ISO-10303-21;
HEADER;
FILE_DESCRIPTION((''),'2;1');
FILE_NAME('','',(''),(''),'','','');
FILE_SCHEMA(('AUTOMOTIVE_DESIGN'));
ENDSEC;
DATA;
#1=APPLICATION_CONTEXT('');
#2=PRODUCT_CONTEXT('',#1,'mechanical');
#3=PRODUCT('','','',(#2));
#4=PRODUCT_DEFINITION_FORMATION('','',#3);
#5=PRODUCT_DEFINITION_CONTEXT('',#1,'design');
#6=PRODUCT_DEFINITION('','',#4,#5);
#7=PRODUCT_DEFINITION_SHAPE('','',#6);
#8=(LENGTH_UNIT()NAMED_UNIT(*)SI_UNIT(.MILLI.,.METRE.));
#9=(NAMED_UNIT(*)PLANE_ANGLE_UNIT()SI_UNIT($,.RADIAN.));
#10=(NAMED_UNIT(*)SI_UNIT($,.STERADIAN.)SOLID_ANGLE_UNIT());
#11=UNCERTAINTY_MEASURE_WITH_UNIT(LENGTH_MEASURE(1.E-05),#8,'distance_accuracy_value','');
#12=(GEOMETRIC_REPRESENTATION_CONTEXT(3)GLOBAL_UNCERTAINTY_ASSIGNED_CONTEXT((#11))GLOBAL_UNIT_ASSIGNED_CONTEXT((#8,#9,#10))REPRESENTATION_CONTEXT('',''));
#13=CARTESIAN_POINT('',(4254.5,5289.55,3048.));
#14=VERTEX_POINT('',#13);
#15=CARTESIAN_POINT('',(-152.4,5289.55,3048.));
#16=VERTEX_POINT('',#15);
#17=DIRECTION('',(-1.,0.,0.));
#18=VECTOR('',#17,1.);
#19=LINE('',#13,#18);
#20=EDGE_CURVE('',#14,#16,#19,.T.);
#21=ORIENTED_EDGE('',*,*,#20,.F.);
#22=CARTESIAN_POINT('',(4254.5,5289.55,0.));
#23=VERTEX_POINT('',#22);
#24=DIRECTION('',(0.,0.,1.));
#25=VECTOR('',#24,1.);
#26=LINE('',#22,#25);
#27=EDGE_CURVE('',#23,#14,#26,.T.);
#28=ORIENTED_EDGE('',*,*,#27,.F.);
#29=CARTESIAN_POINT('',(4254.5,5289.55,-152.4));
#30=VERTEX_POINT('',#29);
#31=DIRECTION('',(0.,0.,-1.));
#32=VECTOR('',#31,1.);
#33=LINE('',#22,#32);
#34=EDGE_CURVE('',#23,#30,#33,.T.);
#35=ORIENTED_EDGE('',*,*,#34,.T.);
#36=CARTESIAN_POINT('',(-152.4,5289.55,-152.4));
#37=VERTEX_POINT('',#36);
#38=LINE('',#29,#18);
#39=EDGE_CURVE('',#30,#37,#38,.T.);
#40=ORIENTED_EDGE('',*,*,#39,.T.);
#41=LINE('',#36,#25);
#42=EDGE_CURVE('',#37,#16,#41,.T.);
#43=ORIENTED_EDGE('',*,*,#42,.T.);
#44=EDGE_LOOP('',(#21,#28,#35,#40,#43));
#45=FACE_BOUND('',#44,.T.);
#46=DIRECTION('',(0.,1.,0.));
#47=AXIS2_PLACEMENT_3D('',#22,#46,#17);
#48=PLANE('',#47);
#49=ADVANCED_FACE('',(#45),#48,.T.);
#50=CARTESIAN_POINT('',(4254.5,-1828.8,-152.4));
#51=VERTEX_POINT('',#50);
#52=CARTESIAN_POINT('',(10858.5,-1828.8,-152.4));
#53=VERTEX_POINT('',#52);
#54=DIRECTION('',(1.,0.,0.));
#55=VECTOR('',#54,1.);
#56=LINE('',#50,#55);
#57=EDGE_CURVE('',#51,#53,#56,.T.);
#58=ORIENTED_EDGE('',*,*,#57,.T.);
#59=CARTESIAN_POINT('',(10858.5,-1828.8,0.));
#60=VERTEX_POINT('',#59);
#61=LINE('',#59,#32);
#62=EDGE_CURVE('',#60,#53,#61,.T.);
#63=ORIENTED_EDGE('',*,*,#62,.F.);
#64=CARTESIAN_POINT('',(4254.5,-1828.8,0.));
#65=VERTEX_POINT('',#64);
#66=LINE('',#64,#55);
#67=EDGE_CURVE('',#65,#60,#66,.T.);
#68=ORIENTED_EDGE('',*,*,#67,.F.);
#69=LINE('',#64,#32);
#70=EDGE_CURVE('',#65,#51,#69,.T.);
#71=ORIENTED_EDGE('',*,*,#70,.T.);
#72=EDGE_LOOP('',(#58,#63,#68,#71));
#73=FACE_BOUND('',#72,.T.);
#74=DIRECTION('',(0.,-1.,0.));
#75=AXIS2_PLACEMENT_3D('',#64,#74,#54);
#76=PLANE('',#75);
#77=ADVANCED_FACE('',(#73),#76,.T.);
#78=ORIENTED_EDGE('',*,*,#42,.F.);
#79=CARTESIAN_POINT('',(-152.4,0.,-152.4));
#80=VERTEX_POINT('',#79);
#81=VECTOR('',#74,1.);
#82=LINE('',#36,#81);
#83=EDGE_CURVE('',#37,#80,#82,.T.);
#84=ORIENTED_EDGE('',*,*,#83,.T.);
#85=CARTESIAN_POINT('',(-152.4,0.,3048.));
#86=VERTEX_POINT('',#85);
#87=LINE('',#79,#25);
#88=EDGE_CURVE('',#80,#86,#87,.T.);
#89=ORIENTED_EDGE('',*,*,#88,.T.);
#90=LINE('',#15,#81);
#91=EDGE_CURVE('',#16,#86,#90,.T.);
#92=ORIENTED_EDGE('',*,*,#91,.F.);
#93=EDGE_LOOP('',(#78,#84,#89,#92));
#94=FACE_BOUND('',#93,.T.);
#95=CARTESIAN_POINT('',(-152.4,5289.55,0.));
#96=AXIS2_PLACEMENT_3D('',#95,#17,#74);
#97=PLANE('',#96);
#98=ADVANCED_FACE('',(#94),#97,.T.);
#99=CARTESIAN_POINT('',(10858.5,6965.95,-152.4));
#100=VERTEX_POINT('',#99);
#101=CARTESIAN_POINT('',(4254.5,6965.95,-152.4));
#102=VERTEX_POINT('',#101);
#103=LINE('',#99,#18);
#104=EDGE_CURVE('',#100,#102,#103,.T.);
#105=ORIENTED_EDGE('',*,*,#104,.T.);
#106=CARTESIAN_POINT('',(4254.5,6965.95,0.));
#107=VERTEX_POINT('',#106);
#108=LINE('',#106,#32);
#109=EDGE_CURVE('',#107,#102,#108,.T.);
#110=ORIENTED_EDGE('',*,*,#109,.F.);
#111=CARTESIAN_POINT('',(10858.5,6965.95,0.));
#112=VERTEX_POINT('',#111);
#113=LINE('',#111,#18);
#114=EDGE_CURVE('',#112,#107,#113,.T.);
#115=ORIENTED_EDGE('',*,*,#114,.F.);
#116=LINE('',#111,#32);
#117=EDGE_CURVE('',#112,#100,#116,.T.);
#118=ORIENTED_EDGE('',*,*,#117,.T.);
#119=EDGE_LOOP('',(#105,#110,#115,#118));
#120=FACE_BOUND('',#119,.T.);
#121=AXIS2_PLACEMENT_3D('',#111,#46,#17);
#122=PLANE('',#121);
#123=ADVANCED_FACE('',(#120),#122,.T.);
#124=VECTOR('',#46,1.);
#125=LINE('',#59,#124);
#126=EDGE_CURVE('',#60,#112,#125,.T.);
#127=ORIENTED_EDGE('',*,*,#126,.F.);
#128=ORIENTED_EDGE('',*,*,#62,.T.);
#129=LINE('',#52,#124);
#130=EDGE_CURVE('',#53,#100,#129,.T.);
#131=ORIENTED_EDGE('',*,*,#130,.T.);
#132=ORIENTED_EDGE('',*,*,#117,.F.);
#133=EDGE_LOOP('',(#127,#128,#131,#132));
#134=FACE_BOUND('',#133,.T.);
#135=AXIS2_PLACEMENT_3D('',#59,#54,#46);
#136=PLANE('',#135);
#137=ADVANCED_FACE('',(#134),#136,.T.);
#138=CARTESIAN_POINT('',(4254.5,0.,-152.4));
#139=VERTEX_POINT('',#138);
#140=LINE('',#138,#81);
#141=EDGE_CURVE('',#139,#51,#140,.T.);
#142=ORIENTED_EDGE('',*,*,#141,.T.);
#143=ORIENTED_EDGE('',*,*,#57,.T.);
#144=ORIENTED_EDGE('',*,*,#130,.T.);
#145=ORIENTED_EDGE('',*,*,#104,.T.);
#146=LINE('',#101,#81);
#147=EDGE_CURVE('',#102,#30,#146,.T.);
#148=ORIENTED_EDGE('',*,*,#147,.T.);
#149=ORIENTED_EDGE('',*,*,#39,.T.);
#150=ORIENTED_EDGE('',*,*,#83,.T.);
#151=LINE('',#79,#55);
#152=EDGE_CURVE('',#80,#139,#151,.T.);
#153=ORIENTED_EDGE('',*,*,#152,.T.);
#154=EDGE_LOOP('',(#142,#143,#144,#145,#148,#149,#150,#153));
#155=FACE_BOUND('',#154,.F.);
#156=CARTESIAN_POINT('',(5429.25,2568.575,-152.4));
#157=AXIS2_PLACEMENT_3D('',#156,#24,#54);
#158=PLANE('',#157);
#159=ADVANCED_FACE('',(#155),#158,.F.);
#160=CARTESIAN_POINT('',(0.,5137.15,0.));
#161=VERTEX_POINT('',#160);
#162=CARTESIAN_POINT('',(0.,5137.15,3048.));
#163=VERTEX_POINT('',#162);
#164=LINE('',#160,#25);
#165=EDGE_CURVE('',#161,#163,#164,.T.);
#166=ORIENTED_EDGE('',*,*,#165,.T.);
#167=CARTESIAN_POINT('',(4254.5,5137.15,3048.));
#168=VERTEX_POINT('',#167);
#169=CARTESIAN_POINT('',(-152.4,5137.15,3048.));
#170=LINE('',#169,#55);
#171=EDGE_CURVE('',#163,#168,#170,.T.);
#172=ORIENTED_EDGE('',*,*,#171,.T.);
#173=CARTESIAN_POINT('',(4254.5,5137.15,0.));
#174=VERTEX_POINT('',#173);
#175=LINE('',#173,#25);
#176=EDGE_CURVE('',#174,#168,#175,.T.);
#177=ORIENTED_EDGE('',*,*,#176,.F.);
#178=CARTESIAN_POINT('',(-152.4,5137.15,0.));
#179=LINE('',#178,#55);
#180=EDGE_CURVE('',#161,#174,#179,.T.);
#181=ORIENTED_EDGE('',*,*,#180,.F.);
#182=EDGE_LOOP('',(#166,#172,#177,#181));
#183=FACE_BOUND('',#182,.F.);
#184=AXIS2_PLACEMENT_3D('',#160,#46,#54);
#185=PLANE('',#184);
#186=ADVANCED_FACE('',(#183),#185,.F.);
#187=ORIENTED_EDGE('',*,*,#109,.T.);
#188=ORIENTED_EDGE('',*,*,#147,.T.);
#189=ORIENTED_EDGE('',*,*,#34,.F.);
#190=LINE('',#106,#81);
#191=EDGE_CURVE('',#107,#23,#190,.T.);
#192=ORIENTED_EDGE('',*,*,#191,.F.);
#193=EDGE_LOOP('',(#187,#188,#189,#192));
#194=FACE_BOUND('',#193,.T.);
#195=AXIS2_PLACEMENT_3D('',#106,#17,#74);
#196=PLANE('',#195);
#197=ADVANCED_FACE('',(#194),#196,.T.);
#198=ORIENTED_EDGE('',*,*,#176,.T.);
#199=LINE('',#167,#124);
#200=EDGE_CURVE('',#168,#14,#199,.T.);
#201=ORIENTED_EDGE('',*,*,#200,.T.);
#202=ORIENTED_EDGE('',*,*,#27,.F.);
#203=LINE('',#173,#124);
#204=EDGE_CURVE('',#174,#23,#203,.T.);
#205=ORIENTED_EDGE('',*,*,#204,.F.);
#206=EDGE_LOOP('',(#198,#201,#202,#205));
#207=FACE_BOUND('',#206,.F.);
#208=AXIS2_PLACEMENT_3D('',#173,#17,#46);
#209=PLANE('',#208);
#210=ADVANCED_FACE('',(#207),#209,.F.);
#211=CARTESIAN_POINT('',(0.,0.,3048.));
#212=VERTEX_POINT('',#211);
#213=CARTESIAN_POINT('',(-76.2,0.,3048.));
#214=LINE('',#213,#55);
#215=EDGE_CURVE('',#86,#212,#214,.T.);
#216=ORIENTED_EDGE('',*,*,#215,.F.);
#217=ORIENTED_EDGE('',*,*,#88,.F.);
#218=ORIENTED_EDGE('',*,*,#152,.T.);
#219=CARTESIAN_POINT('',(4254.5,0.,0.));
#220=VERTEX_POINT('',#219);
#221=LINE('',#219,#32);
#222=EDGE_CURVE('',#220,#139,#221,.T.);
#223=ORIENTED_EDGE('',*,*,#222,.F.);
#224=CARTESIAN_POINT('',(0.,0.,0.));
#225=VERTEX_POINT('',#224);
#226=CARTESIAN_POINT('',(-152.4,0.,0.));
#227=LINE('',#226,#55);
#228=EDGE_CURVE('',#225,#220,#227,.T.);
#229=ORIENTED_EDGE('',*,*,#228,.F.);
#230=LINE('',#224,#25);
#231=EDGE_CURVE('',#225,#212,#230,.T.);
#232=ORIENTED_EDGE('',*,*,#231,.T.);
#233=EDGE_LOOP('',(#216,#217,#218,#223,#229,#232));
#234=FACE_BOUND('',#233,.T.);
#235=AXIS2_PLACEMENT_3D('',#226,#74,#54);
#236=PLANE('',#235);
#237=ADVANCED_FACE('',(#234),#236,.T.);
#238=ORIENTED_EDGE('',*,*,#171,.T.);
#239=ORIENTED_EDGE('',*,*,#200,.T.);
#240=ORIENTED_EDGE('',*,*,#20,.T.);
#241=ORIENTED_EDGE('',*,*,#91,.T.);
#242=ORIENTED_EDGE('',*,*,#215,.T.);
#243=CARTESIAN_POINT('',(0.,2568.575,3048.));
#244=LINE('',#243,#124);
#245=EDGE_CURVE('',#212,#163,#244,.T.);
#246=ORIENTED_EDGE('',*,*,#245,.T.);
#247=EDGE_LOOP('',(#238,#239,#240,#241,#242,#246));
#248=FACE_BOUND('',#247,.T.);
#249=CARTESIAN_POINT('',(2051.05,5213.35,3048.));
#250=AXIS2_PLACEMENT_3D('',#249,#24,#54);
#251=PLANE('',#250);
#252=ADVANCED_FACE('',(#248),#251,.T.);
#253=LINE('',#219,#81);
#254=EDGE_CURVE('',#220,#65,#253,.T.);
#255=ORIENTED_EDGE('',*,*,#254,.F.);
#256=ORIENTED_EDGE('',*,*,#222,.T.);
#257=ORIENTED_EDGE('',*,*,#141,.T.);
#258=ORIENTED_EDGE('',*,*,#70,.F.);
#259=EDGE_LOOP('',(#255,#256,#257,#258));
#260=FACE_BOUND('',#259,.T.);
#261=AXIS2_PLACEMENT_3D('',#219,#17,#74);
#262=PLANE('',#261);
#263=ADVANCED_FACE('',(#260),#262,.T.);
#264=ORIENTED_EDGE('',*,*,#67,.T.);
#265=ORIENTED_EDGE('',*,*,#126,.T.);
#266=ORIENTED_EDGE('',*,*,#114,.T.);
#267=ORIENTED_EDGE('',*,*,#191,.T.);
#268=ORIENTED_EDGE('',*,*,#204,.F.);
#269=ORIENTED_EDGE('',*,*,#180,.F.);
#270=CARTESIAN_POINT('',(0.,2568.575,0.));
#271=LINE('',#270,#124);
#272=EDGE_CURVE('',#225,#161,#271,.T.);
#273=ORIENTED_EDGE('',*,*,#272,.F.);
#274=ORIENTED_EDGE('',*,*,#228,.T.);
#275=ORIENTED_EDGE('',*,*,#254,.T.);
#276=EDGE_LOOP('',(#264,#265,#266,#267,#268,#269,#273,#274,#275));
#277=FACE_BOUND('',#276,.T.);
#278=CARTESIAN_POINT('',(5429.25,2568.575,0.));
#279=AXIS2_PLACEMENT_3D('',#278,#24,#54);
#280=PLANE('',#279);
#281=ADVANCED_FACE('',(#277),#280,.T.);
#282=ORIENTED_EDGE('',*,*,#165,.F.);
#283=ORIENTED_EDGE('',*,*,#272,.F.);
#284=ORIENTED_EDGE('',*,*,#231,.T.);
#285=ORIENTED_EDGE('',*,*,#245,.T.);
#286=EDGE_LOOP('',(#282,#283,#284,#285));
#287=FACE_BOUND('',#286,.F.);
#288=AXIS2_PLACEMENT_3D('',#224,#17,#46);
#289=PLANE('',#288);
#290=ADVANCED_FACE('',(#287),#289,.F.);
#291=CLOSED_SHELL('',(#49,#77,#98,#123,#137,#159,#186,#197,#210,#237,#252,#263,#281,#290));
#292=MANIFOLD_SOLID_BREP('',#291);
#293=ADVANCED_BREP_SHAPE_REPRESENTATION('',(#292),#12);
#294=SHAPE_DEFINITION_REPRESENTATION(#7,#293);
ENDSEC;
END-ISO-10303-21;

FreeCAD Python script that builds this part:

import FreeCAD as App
import Part
import Sketcher

V = App.Vector
Q = App.Units.Quantity

doc = App.newDocument("Part")
body = doc.addObject("PartDesign::Body", "Body")

# Sketch on XY plane
sketch1 = body.newObject("Sketcher::SketchObject", "Sketch")
sketch1.AttachmentSupport = (doc.getObject("XY_Plane"), [""])
sketch1.MapMode = "FlatFace"
sketch1.addGeometry(Part.LineSegment(V(0, 5137, 0), V(4254, 5137, 0)), False)
sketch1.addGeometry(Part.LineSegment(V(4254, 5137, 0), V(4254, 5290, 0)), False)
sketch1.addGeometry(Part.LineSegment(V(4254, 5290, 0), V(-152, 5290, 0)), False)
sketch1.addGeometry(Part.LineSegment(V(-152, 5290, 0), V(-152, 0, 0)), False)
sketch1.addGeometry(Part.LineSegment(V(-152, 0, 0), V(0, 0, 0)), False)
sketch1.addGeometry(Part.LineSegment(V(0, 0, 0), V(0, 5137, 0)), False)
sketch1.addConstraint(Sketcher.Constraint("Coincident", 0, 2, 1, 1))
sketch1.addConstraint(Sketcher.Constraint("Coincident", 1, 2, 2, 1))
sketch1.addConstraint(Sketcher.Constraint("Coincident", 2, 2, 3, 1))
sketch1.addConstraint(Sketcher.Constraint("Coincident", 3, 2, 4, 1))
sketch1.addConstraint(Sketcher.Constraint("Coincident", 4, 2, 5, 1))
sketch1.addConstraint(Sketcher.Constraint("Coincident", 5, 2, 0, 1))
sketch1.addConstraint(Sketcher.Constraint("Horizontal", 0))
sketch1.addConstraint(Sketcher.Constraint("Vertical", 1))
sketch1.addConstraint(Sketcher.Constraint("Horizontal", 2))
sketch1.addConstraint(Sketcher.Constraint("Vertical", 3))
sketch1.addConstraint(Sketcher.Constraint("Horizontal", 4))
sketch1.addConstraint(Sketcher.Constraint("Vertical", 5))
sketch1.addConstraint(Sketcher.Constraint("Coincident", 4, 2, -1, 1))
sketch1.addConstraint(Sketcher.Constraint("Equal", 4, 1))
sketch1.addConstraint(Sketcher.Constraint("DistanceX", 4, 1, 4, 2, Q("6 in")))
sketch1.addConstraint(Sketcher.Constraint("DistanceX", 0, 1, 0, 2, Q("167.5 in")))
sketch1.addConstraint(Sketcher.Constraint("DistanceY", 3, 2, 3, 1, Q("208.25 in")))
pad1 = body.newObject("PartDesign::Pad", "Pad")
pad1.Profile = sketch1
pad1.Length = Q("120 in")

# Sketch on XY plane
sketch2 = body.newObject("Sketcher::SketchObject", "Sketch001")
sketch2.AttachmentSupport = (doc.getObject("XY_Plane"), [""])
sketch2.MapMode = "FlatFace"
sketch2.addGeometry(Part.LineSegment(V(4254, 5290, 0), V(-152, 5290, 0)), False)
sketch2.addGeometry(Part.LineSegment(V(-152, 5290, 0), V(-152, 0, 0)), False)
sketch2.addGeometry(Part.LineSegment(V(-152, 0, 0), V(4254, 0, 0)), False)
sketch2.addGeometry(Part.LineSegment(V(4254, 0, 0), V(4254, -1829, 0)), False)
sketch2.addGeometry(Part.LineSegment(V(4254, -1829, 0), V(10858, -1829, 0)), False)
sketch2.addGeometry(Part.LineSegment(V(10858, -1829, 0), V(10858, 6966, 0)), False)
sketch2.addGeometry(Part.LineSegment(V(10858, 6966, 0), V(4254, 6966, 0)), False)
sketch2.addGeometry(Part.LineSegment(V(4254, 6966, 0), V(4254, 5290, 0)), False)
sketch2.addConstraint(Sketcher.Constraint("Coincident", 0, 2, 1, 1))
sketch2.addConstraint(Sketcher.Constraint("Coincident", 1, 2, 2, 1))
sketch2.addConstraint(Sketcher.Constraint("Coincident", 2, 2, 3, 1))
sketch2.addConstraint(Sketcher.Constraint("Coincident", 3, 2, 4, 1))
sketch2.addConstraint(Sketcher.Constraint("Coincident", 4, 2, 5, 1))
sketch2.addConstraint(Sketcher.Constraint("Coincident", 5, 2, 6, 1))
sketch2.addConstraint(Sketcher.Constraint("Coincident", 6, 2, 7, 1))
sketch2.addConstraint(Sketcher.Constraint("Coincident", 7, 2, 0, 1))
sketch2.addConstraint(Sketcher.Constraint("Horizontal", 0))
sketch2.addConstraint(Sketcher.Constraint("Vertical", 1))
sketch2.addConstraint(Sketcher.Constraint("Horizontal", 2))
sketch2.addConstraint(Sketcher.Constraint("Vertical", 3))
sketch2.addConstraint(Sketcher.Constraint("Horizontal", 4))
sketch2.addConstraint(Sketcher.Constraint("Vertical", 5))
sketch2.addConstraint(Sketcher.Constraint("Horizontal", 6))
sketch2.addConstraint(Sketcher.Constraint("Vertical", 7))
sketch2.addConstraint(Sketcher.Constraint("PointOnObject", 1, 2, -1))
sketch2.addConstraint(Sketcher.Constraint("Vertical", 3, 2, 6, 2))
sketch2.addConstraint(Sketcher.Constraint("DistanceX", 4, 1, 4, 2, Q("260 in")))
sketch2.addConstraint(Sketcher.Constraint("DistanceY", 3, 2, 3, 1, Q("72 in")))
sketch2.addConstraint(Sketcher.Constraint("DistanceY", 7, 2, 7, 1, Q("66 in")))
sketch2.addConstraint(Sketcher.Constraint("DistanceX", 0, 2, 0, 1, Q("173.5 in")))
sketch2.addConstraint(Sketcher.Constraint("DistanceX", 0, 2, -1, 1, Q("6 in")))
sketch2.addConstraint(Sketcher.Constraint("DistanceY", 1, 2, 1, 1, Q("208.25 in")))
pad2 = body.newObject("PartDesign::Pad", "Pad001")
pad2.Profile = sketch2
pad2.Length = Q("6 in")
pad2.Reversed = True

doc.recompute()
